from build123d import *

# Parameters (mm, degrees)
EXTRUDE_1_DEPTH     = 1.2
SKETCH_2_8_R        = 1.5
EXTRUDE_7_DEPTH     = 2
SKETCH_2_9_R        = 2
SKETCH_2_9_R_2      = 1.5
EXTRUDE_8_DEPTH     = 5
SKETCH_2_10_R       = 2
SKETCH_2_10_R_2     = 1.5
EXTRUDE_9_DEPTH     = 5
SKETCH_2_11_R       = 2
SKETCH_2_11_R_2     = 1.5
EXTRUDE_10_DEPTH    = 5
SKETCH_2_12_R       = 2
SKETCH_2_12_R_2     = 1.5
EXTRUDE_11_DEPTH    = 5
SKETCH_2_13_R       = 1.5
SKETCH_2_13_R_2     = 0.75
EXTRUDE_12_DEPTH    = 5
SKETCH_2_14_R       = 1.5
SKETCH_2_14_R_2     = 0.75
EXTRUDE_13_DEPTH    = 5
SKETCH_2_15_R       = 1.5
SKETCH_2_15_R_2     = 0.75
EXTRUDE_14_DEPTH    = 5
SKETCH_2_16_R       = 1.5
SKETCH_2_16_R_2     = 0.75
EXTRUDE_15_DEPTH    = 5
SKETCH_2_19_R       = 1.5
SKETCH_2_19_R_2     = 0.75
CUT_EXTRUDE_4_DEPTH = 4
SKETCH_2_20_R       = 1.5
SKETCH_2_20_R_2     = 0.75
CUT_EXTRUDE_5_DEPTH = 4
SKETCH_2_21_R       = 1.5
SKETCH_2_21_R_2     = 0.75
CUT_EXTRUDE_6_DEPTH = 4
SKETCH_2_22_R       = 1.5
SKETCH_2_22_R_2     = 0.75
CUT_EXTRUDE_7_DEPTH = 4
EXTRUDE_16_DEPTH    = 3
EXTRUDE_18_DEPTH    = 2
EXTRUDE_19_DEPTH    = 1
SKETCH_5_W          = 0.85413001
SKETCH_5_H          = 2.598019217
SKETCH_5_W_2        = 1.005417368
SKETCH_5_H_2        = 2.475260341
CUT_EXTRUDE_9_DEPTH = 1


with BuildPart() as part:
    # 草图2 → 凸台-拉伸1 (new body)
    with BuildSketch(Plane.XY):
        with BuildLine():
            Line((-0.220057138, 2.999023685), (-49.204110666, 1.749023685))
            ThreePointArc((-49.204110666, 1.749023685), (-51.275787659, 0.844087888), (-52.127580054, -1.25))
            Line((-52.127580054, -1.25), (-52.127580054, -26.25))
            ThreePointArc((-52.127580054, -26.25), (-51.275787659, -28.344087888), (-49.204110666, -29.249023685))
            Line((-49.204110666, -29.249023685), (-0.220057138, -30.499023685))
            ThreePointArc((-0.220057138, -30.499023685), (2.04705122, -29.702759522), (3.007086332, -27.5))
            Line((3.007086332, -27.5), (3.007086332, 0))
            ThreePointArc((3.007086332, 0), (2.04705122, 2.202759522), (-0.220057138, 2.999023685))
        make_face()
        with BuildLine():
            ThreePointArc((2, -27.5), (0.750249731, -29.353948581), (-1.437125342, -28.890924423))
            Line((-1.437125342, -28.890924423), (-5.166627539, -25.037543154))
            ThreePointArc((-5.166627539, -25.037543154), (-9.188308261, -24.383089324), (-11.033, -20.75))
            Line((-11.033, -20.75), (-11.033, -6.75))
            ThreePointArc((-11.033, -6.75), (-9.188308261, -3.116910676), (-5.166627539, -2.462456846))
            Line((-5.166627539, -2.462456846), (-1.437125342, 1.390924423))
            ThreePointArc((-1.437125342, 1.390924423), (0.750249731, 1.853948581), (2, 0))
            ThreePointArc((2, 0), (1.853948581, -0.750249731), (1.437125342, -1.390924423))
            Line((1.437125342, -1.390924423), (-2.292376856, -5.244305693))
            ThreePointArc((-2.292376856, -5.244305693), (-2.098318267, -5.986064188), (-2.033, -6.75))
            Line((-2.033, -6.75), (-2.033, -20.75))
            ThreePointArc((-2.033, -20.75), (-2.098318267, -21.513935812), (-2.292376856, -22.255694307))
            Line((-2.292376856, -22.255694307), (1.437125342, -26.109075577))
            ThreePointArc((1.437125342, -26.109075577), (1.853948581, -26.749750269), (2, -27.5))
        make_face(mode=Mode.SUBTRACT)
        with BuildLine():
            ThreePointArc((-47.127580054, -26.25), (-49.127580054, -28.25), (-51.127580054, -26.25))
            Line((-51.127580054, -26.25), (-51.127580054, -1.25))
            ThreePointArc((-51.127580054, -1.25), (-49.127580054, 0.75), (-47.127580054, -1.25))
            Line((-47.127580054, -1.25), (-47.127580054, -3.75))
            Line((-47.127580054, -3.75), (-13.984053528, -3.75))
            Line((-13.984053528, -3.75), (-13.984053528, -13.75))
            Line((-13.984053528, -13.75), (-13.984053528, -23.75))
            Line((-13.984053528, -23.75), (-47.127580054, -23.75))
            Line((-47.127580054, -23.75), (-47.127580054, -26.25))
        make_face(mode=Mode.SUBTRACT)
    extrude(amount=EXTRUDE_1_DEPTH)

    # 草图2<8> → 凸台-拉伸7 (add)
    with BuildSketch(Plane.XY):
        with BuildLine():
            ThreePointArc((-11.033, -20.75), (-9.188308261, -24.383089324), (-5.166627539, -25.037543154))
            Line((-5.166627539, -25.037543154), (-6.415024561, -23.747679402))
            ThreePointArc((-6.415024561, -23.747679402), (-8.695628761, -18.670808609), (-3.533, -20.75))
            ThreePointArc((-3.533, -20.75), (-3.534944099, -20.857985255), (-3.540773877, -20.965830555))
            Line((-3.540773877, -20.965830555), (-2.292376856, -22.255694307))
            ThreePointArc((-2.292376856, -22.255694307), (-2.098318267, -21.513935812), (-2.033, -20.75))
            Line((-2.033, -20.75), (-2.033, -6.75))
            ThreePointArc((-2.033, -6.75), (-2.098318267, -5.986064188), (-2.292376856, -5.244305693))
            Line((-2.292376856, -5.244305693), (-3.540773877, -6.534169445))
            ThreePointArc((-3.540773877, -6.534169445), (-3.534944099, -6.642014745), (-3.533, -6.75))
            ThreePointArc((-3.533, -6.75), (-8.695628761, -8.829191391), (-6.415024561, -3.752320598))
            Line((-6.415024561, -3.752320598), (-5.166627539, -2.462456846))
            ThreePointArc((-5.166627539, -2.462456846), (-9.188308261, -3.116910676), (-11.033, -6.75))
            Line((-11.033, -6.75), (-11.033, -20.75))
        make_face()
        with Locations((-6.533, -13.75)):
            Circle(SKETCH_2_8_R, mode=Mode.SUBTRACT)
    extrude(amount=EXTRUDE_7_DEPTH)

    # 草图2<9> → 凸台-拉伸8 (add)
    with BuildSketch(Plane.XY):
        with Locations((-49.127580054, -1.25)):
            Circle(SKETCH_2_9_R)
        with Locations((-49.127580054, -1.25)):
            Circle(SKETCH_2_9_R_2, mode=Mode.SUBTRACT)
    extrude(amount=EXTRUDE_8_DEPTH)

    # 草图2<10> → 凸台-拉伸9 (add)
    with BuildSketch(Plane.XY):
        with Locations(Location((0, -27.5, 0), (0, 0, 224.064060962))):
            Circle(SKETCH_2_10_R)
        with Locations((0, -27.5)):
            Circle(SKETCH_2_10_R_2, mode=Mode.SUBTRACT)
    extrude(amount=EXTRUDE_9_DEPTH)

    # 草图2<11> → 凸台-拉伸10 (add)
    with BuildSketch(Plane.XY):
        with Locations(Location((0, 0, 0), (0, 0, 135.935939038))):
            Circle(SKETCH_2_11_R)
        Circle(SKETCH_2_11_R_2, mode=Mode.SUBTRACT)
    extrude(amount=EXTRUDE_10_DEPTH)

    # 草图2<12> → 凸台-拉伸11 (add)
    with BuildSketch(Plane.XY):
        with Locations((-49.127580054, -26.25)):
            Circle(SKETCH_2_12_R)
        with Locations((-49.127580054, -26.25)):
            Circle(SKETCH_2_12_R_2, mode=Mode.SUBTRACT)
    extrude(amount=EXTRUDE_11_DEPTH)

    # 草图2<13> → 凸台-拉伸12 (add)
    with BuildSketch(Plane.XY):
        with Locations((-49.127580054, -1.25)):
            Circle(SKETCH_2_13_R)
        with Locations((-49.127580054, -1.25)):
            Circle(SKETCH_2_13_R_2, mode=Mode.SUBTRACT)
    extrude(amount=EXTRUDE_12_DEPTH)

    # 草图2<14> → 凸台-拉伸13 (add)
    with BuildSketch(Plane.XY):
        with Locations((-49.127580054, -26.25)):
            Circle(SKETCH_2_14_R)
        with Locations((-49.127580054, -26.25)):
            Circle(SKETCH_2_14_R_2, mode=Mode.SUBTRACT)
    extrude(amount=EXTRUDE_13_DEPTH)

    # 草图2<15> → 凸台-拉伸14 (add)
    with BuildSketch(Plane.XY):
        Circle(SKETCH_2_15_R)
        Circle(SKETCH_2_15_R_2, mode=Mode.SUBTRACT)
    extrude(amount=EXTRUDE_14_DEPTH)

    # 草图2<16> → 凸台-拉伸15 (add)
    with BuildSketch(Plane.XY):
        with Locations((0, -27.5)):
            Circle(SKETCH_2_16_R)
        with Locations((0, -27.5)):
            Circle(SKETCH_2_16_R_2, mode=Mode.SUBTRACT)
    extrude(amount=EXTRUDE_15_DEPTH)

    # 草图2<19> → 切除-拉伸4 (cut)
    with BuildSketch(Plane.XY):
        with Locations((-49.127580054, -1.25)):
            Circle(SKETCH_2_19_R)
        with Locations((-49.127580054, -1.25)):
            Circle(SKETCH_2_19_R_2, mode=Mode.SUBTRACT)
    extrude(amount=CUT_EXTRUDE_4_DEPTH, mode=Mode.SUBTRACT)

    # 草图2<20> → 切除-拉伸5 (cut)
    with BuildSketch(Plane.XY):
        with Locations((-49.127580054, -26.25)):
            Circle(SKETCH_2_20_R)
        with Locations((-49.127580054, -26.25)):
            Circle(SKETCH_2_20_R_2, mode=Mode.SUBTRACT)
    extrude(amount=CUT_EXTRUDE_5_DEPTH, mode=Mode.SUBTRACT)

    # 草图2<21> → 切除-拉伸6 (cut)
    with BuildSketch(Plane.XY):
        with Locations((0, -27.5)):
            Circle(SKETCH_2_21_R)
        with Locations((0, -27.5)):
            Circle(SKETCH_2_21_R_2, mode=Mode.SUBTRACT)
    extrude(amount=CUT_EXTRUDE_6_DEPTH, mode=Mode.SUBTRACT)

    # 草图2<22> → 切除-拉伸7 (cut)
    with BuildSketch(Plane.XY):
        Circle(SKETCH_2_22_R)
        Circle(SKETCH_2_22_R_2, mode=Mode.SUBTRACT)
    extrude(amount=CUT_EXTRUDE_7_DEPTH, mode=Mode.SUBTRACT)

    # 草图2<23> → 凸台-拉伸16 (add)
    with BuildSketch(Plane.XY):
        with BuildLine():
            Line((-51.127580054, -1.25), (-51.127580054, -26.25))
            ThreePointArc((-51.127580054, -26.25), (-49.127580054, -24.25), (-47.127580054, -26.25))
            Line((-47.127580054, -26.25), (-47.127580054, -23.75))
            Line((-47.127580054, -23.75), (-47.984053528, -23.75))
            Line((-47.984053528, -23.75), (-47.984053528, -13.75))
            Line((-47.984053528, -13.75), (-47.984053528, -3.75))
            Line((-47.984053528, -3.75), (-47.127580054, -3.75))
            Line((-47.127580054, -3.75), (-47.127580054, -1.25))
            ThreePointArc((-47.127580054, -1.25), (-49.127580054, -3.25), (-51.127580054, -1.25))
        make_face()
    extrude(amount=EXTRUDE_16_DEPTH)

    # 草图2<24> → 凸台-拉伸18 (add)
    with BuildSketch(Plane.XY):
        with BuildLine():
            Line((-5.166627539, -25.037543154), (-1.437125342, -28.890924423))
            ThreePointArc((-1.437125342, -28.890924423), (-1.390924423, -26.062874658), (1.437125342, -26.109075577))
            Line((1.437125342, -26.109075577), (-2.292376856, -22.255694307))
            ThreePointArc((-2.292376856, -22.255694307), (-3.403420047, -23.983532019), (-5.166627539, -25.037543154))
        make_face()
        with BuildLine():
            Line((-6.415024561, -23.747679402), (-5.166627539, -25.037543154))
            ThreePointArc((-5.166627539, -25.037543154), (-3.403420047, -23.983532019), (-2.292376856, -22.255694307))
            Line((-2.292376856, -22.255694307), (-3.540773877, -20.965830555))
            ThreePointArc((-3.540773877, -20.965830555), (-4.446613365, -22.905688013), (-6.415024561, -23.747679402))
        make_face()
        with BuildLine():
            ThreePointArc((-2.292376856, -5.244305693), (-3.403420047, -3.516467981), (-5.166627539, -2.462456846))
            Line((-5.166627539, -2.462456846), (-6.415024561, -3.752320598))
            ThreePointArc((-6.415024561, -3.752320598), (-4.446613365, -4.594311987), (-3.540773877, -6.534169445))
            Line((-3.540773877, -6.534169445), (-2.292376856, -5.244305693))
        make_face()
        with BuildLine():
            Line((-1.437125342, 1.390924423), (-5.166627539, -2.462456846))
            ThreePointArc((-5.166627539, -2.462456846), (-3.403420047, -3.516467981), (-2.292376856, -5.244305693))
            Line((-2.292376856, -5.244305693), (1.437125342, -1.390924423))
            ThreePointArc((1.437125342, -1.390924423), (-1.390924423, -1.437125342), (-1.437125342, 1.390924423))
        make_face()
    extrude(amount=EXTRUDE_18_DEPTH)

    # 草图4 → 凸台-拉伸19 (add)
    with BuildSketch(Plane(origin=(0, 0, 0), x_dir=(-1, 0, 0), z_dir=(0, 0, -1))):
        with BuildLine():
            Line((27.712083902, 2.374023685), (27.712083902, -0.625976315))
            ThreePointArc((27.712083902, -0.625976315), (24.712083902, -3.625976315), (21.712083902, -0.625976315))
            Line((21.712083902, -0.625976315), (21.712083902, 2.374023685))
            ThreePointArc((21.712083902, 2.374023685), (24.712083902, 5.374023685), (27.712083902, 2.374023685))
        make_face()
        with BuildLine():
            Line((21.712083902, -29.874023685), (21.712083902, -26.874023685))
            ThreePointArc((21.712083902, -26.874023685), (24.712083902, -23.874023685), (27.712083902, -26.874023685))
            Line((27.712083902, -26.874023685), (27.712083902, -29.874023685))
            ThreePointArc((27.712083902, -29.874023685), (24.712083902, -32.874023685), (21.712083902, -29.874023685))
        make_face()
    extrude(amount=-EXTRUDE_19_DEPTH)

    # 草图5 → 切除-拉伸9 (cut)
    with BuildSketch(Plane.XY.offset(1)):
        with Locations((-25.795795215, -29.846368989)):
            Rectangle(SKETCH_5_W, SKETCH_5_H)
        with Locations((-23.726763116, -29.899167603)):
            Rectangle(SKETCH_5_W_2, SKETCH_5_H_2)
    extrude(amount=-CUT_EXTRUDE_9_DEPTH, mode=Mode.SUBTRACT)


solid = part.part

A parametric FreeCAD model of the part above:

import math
import FreeCAD as App
import Part
import Sketcher
from FreeCAD import Vector

doc = App.newDocument("Part")
body = doc.addObject("PartDesign::Body", "Body")

sketch1 = body.newObject("Sketcher::SketchObject", "Sketch")
sketch1.AttachmentSupport = (doc.getObject("XY_Plane"), [""])
sketch1.MapMode = "FlatFace"
sketch1.addGeometry([
    Part.LineSegment(Vector(-0.2, 3, 0), Vector(-49.2, 1.7, 0)),
    Part.ArcOfCircle(Part.Circle(Vector(-49.1, -1.3, 0), Vector(0, 0, 1), 3), math.radians(91), math.radians(180)),
    Part.LineSegment(Vector(-52.1, -1.2, 0), Vector(-52.1, -26.2, 0)),
    Part.ArcOfCircle(Part.Circle(Vector(-49.1, -26.2, 0), Vector(0, 0, 1), 3), math.radians(-180), math.radians(-91)),
    Part.LineSegment(Vector(-49.2, -29.2, 0), Vector(-0.2, -30.5, 0)),
    Part.ArcOfCircle(Part.Circle(Vector(0, -27.5, 0), Vector(0, 0, 1), 3), math.radians(-94), math.radians(0)),
    Part.LineSegment(Vector(3, -27.5, 0), Vector(3, 0, 0)),
    Part.ArcOfCircle(Part.Circle(Vector(0, 0, 0), Vector(0, 0, 1), 3), math.radians(0), math.radians(94)),
    Part.LineSegment(Vector(-47.1, -23.8, 0), Vector(-47.1, -26.2, 0)),
    Part.ArcOfCircle(Part.Circle(Vector(-49.1, -26.2, 0), Vector(0, 0, 1), 2), math.radians(180), math.radians(360)),
    Part.LineSegment(Vector(-51.1, -26.2, 0), Vector(-51.1, -1.2, 0)),
    Part.ArcOfCircle(Part.Circle(Vector(-49.1, -1.2, 0), Vector(0, 0, 1), 2), math.radians(0), math.radians(180)),
    Part.LineSegment(Vector(-47.1, -1.2, 0), Vector(-47.1, -3.8, 0)),
    Part.LineSegment(Vector(-47.1, -3.8, 0), Vector(-14, -3.8, 0)),
    Part.LineSegment(Vector(-14, -3.8, 0), Vector(-14, -23.8, 0)),
    Part.LineSegment(Vector(-14, -23.8, 0), Vector(-47.1, -23.8, 0)),
    Part.ArcOfCircle(Part.Circle(Vector(0, -27.5, 0), Vector(0, 0, 1), 2), math.radians(0), math.radians(44)),
    Part.ArcOfCircle(Part.Circle(Vector(0, -27.5, 0), Vector(0, 0, 1), 2), math.radians(-136), math.radians(0)),
    Part.LineSegment(Vector(-1.4, -28.9, 0), Vector(-5.2, -25, 0)),
    Part.ArcOfCircle(Part.Circle(Vector(-6.5, -20.7, 0), Vector(0, 0, 1), 4.5), math.radians(-180), math.radians(-72)),
    Part.LineSegment(Vector(-11, -20.8, 0), Vector(-11, -6.8, 0)),
    Part.ArcOfCircle(Part.Circle(Vector(-6.5, -6.8, 0), Vector(0, 0, 1), 4.5), math.radians(72), math.radians(180)),
    Part.LineSegment(Vector(-5.2, -2.5, 0), Vector(-1.4, 1.4, 0)),
    Part.ArcOfCircle(Part.Circle(Vector(0, 0, 0), Vector(0, 0, 1), 2), math.radians(0), math.radians(136)),
    Part.ArcOfCircle(Part.Circle(Vector(0, 0, 0), Vector(0, 0, 1), 2), math.radians(-44), math.radians(0)),
    Part.LineSegment(Vector(1.4, -1.4, 0), Vector(-2.3, -5.2, 0)),
    Part.ArcOfCircle(Part.Circle(Vector(-6.5, -6.8, 0), Vector(0, 0, 1), 4.5), math.radians(0), math.radians(19.55)),
    Part.LineSegment(Vector(-2, -6.8, 0), Vector(-2, -20.8, 0)),
    Part.ArcOfCircle(Part.Circle(Vector(-6.5, -20.7, 0), Vector(0, 0, 1), 4.5), math.radians(-19.55), math.radians(0)),
    Part.LineSegment(Vector(-2.3, -22.3, 0), Vector(1.4, -26.1, 0)),
], False)
sketch1.addConstraint([
    Sketcher.Constraint("Tangent", 0, 2, 1, 1),
    Sketcher.Constraint("Tangent", 1, 2, 2, 1),
    Sketcher.Constraint("Tangent", 2, 2, 3, 1),
    Sketcher.Constraint("Tangent", 3, 2, 4, 1),
    Sketcher.Constraint("Coincident", 4, 2, 5, 1),
    Sketcher.Constraint("Tangent", 5, 2, 6, 1),
    Sketcher.Constraint("Tangent", 6, 2, 7, 1),
    Sketcher.Constraint("Coincident", 7, 2, 0, 1),
    Sketcher.Constraint("Tangent", 8, 2, 9, 2),
    Sketcher.Constraint("Tangent", 9, 1, 10, 1),
    Sketcher.Constraint("Tangent", 10, 2, 11, 2),
    Sketcher.Constraint("Tangent", 11, 1, 12, 1),
    Sketcher.Constraint("Coincident", 12, 2, 13, 1),
    Sketcher.Constraint("Coincident", 13, 2, 14, 1),
    Sketcher.Constraint("Coincident", 14, 2, 15, 1),
    Sketcher.Constraint("Coincident", 15, 2, 8, 1),
    Sketcher.Constraint("Tangent", 16, 1, 17, 2),
    Sketcher.Constraint("Tangent", 17, 1, 18, 1),
    Sketcher.Constraint("Coincident", 18, 2, 19, 2),
    Sketcher.Constraint("Tangent", 19, 1, 20, 1),
    Sketcher.Constraint("Tangent", 20, 2, 21, 2),
    Sketcher.Constraint("Coincident", 21, 1, 22, 1),
    Sketcher.Constraint("Tangent", 22, 2, 23, 2),
    Sketcher.Constraint("Tangent", 23, 1, 24, 2),
    Sketcher.Constraint("Tangent", 24, 1, 25, 1),
    Sketcher.Constraint("Coincident", 25, 2, 26, 2),
    Sketcher.Constraint("Tangent", 26, 1, 27, 1),
    Sketcher.Constraint("Tangent", 27, 2, 28, 2),
    Sketcher.Constraint("Coincident", 28, 1, 29, 1),
    Sketcher.Constraint("Tangent", 29, 2, 16, 2),
    Sketcher.Constraint("Vertical", 2),
    Sketcher.Constraint("Vertical", 6),
    Sketcher.Constraint("Vertical", 8),
    Sketcher.Constraint("Vertical", 10),
    Sketcher.Constraint("Vertical", 12),
    Sketcher.Constraint("Horizontal", 13),
    Sketcher.Constraint("Vertical", 14),
    Sketcher.Constraint("Horizontal", 15),
    Sketcher.Constraint("Vertical", 20),
    Sketcher.Constraint("Vertical", 27),
    Sketcher.Constraint("Coincident", 7, 3, -1, 1),
    Sketcher.Constraint("Coincident", 23, 3, -1, 1),
    Sketcher.Constraint("Coincident", 9, 3, 3, 3),
    Sketcher.Constraint("Coincident", 11, 3, 1, 3),
    Sketcher.Constraint("Coincident", 16, 3, 5, 3),
    Sketcher.Constraint("Coincident", 26, 3, 21, 3),
    Sketcher.Constraint("Coincident", 28, 3, 19, 3),
    Sketcher.Constraint("Equal", 1, 3),
    Sketcher.Constraint("Equal", 5, 7),
    Sketcher.Constraint("Equal", 11, 16),
    Sketcher.Constraint("Equal", 16, 17),
    Sketcher.Constraint("Equal", 19, 21),
    Sketcher.Constraint("Equal", 17, 23),
    Sketcher.Constraint("Equal", 23, 24),
    Sketcher.Constraint("Equal", 21, 26),
    Sketcher.Constraint("PointOnObject", 23, 1, -1),
    Sketcher.Constraint("Parallel", 22, 25),
    Sketcher.Constraint("Parallel", 18, 29),
    Sketcher.Constraint("Horizontal", 5, 2, 16, 1),
    Sketcher.Constraint("Vertical", 0, 2, 3, 2),
    Sketcher.Constraint("Vertical", 4, 2, 7, 2),
    Sketcher.Constraint("Vertical", 18, 2, 21, 1),
    Sketcher.Constraint("Vertical", 17, 1, 22, 2),
    Sketcher.Constraint("Equal", 8, 12),
    Sketcher.Constraint("Equal", 22, 25),
    Sketcher.Constraint("Radius", 1, 3.0),
    Sketcher.Constraint("Radius", 9, 2.0),
    Sketcher.Constraint("Radius", 19, 4.5),
    Sketcher.Constraint("DistanceY", 2, 2, 2, 1, 25.0),
    Sketcher.Constraint("DistanceY", 14, 2, 14, 1, 20.0),
    Sketcher.Constraint("DistanceY", 20, 1, 20, 2, 14.0),
    Sketcher.Constraint("Distance", 0, 49.0),
    Sketcher.Constraint("DistanceY", 6, 1, 6, 2, 27.5),
    Sketcher.Constraint("DistanceX", 19, 3, -1, 1, 6.533),
    Sketcher.Constraint("Radius", 5, 3.007086),
    Sketcher.Constraint("DistanceY", 4, 2, 17, 1, 1.608099),
    Sketcher.Constraint("DistanceX", 13, 1, 13, 2, 33.143527),
])
pad1 = body.newObject("PartDesign::Pad", "Pad")
pad1.Profile = sketch1
pad1.Length = 1.2

sketch2 = body.newObject("Sketcher::SketchObject", "Sketch001")
sketch2.AttachmentSupport = (doc.getObject("XY_Plane"), [""])
sketch2.MapMode = "FlatFace"
sketch2.addGeometry([
    Part.ArcOfCircle(Part.Circle(Vector(-6.53, -20.75, 0), Vector(0, 0, 1), 4.5), math.radians(-180), math.radians(-72)),
    Part.LineSegment(Vector(-5.17, -25.04, 0), Vector(-6.42, -23.75, 0)),
    Part.ArcOfCircle(Part.Circle(Vector(-6.53, -20.75, 0), Vector(0, 0, 1), 3), math.radians(0), math.radians(272)),
    Part.ArcOfCircle(Part.Circle(Vector(-6.53, -20.75, 0), Vector(0, 0, 1), 3), math.radians(-4.13), math.radians(0)),
    Part.LineSegment(Vector(-3.54, -20.97, 0), Vector(-2.29, -22.26, 0)),
    Part.ArcOfCircle(Part.Circle(Vector(-6.53, -20.75, 0), Vector(0, 0, 1), 4.5), math.radians(-19.55), math.radians(0)),
    Part.LineSegment(Vector(-2.03, -20.75, 0), Vector(-2.03, -6.75, 0)),
    Part.ArcOfCircle(Part.Circle(Vector(-6.53, -6.75, 0), Vector(0, 0, 1), 4.5), math.radians(0), math.radians(19.55)),
    Part.LineSegment(Vector(-2.29, -5.24, 0), Vector(-3.54, -6.53, 0)),
    Part.ArcOfCircle(Part.Circle(Vector(-6.53, -6.75, 0), Vector(0, 0, 1), 3), math.radians(0), math.radians(4.13)),
    Part.ArcOfCircle(Part.Circle(Vector(-6.53, -6.75, 0), Vector(0, 0, 1), 3), math.radians(88), math.radians(360)),
    Part.LineSegment(Vector(-6.42, -3.75, 0), Vector(-5.17, -2.46, 0)),
    Part.ArcOfCircle(Part.Circle(Vector(-6.53, -6.75, 0), Vector(0, 0, 1), 4.5), math.radians(72), math.radians(180)),
    Part.LineSegment(Vector(-11.03, -6.75, 0), Vector(-11.03, -20.75, 0)),
    Part.Circle(Vector(-6.53, -13.75, 0), Vector(0, 0, 1), 1.5),
], False)
sketch2.addConstraint([
    Sketcher.Constraint("Coincident", 0, 2, 1, 1),
    Sketcher.Constraint("Coincident", 1, 2, 2, 2),
    Sketcher.Constraint("Tangent", 2, 1, 3, 2),
    Sketcher.Constraint("Coincident", 3, 1, 4, 1),
    Sketcher.Constraint("Coincident", 4, 2, 5, 1),
    Sketcher.Constraint("Tangent", 5, 2, 6, 1),
    Sketcher.Constraint("Tangent", 6, 2, 7, 1),
    Sketcher.Constraint("Coincident", 7, 2, 8, 1),
    Sketcher.Constraint("Coincident", 8, 2, 9, 2),
    Sketcher.Constraint("Tangent", 9, 1, 10, 2),
    Sketcher.Constraint("Coincident", 10, 1, 11, 1),
    Sketcher.Constraint("Coincident", 11, 2, 12, 1),
    Sketcher.Constraint("Tangent", 12, 2, 13, 1),
    Sketcher.Constraint("Tangent", 13, 2, 0, 1),
    Sketcher.Constraint("Vertical", 6),
    Sketcher.Constraint("Vertical", 13),
    Sketcher.Constraint("Coincident", 2, 3, 0, 3),
    Sketcher.Constraint("Coincident", 5, 3, 0, 3),
    Sketcher.Constraint("Coincident", 9, 3, 7, 3),
    Sketcher.Constraint("Coincident", 12, 3, 7, 3),
    Sketcher.Constraint("Equal", 2, 3),
    Sketcher.Constraint("Equal", 0, 5),
    Sketcher.Constraint("Equal", 5, 7),
    Sketcher.Constraint("Equal", 3, 9),
    Sketcher.Constraint("Equal", 9, 10),
    Sketcher.Constraint("Parallel", 1, 4),
    Sketcher.Constraint("Parallel", 8, 11),
    Sketcher.Constraint("Horizontal", 5, 3, 2, 1),
    Sketcher.Constraint("Horizontal", 6, 2, 9, 1),
    Sketcher.Constraint("Vertical", 12, 3, 14, 3),
    Sketcher.Constraint("Vertical", 4, 2, 7, 2),
    Sketcher.Constraint("Vertical", 3, 1, 8, 2),
    Sketcher.Constraint("Vertical", 1, 2, 10, 1),
    Sketcher.Constraint("Equal", 1, 4),
    Sketcher.Constraint("Diameter", 14, 3.0),
    Sketcher.Constraint("Radius", 2, 3.0),
    Sketcher.Constraint("Radius", 0, 4.5),
    Sketcher.Constraint("DistanceY", 6, 1, 6, 2, 14.0),
    Sketcher.Constraint("DistanceY", 0, 3, 14, 3, 7.0),
    Sketcher.Constraint("DistanceY", 0, 3, -1, 1, 20.75),
    Sketcher.Constraint("DistanceX", 0, 3, -1, 1, 6.533),
    Sketcher.Constraint("Distance", 1, 1.795061),
    Sketcher.Constraint("DistanceY", 1, 2, -1, 1, 23.747679),
])
pad2 = body.newObject("PartDesign::Pad", "Pad001")
pad2.Profile = sketch2
pad2.Length = 2

sketch3 = body.newObject("Sketcher::SketchObject", "Sketch002")
sketch3.AttachmentSupport = (doc.getObject("XY_Plane"), [""])
sketch3.MapMode = "FlatFace"
sketch3.addGeometry([
    Part.Circle(Vector(-49.1, -1.2, 0), Vector(0, 0, 1), 2),
    Part.Circle(Vector(-49.1, -1.2, 0), Vector(0, 0, 1), 1.5),
], False)
sketch3.addConstraint([
    Sketcher.Constraint("Coincident", 1, 3, 0, 3),
    Sketcher.Constraint("Diameter", 0, 4.0),
    Sketcher.Constraint("Diameter", 1, 3.0),
    Sketcher.Constraint("DistanceY", 0, 3, -1, 1, 1.25),
    Sketcher.Constraint("DistanceX", 0, 3, -1, 1, 49.12758),
])
pad3 = body.newObject("PartDesign::Pad", "Pad002")
pad3.Profile = sketch3
pad3.Length = 5

sketch4 = body.newObject("Sketcher::SketchObject", "Sketch003")
sketch4.AttachmentSupport = (doc.getObject("XY_Plane"), [""])
sketch4.MapMode = "FlatFace"
sketch4.addGeometry([
    Part.Circle(Vector(0, -27.5, 0), Vector(0, 0, 1), 2),
    Part.Circle(Vector(0, -27.5, 0), Vector(0, 0, 1), 1.5),
], False)
sketch4.addConstraint([
    Sketcher.Constraint("Coincident", 1, 3, 0, 3),
    Sketcher.Constraint("PointOnObject", 0, 3, -2),
    Sketcher.Constraint("Diameter", 0, 4.0),
    Sketcher.Constraint("Diameter", 1, 3.0),
    Sketcher.Constraint("DistanceY", 0, 3, -1, 1, 27.5),
])
pad4 = body.newObject("PartDesign::Pad", "Pad003")
pad4.Profile = sketch4
pad4.Length = 5

sketch5 = body.newObject("Sketcher::SketchObject", "Sketch004")
sketch5.AttachmentSupport = (doc.getObject("XY_Plane"), [""])
sketch5.MapMode = "FlatFace"
sketch5.addGeometry([
    Part.Circle(Vector(0, 0, 0), Vector(0, 0, 1), 2),
    Part.Circle(Vector(0, 0, 0), Vector(0, 0, 1), 1.5),
], False)
sketch5.addConstraint([
    Sketcher.Constraint("Coincident", 0, 3, -1, 1),
    Sketcher.Constraint("Coincident", 1, 3, -1, 1),
    Sketcher.Constraint("Diameter", 0, 4.0),
    Sketcher.Constraint("Diameter", 1, 3.0),
])
pad5 = body.newObject("PartDesign::Pad", "Pad004")
pad5.Profile = sketch5
pad5.Length = 5

sketch6 = body.newObject("Sketcher::SketchObject", "Sketch005")
sketch6.AttachmentSupport = (doc.getObject("XY_Plane"), [""])
sketch6.MapMode = "FlatFace"
sketch6.addGeometry([
    Part.Circle(Vector(-49.1, -26.2, 0), Vector(0, 0, 1), 2),
    Part.Circle(Vector(-49.1, -26.2, 0), Vector(0, 0, 1), 1.5),
], False)
sketch6.addConstraint([
    Sketcher.Constraint("Coincident", 1, 3, 0, 3),
    Sketcher.Constraint("Diameter", 0, 4.0),
    Sketcher.Constraint("Diameter", 1, 3.0),
    Sketcher.Constraint("DistanceY", 0, 3, -1, 1, 26.25),
    Sketcher.Constraint("DistanceX", 0, 3, -1, 1, 49.12758),
])
pad6 = body.newObject("PartDesign::Pad", "Pad005")
pad6.Profile = sketch6
pad6.Length = 5

sketch7 = body.newObject("Sketcher::SketchObject", "Sketch006")
sketch7.AttachmentSupport = (doc.getObject("XY_Plane"), [""])
sketch7.MapMode = "FlatFace"
sketch7.addGeometry([
    Part.Circle(Vector(-49.1, -1.2, 0), Vector(0, 0, 1), 1.5),
    Part.Circle(Vector(-49.1, -1.2, 0), Vector(0, 0, 1), 0.8),
], False)
sketch7.addConstraint([
    Sketcher.Constraint("Coincident", 1, 3, 0, 3),
    Sketcher.Constraint("Diameter", 0, 3.0),
    Sketcher.Constraint("Diameter", 1, 1.5),
    Sketcher.Constraint("DistanceY", 0, 3, -1, 1, 1.25),
    Sketcher.Constraint("DistanceX", 0, 3, -1, 1, 49.12758),
])
pad7 = body.newObject("PartDesign::Pad", "Pad006")
pad7.Profile = sketch7
pad7.Length = 5

sketch8 = body.newObject("Sketcher::SketchObject", "Sketch007")
sketch8.AttachmentSupport = (doc.getObject("XY_Plane"), [""])
sketch8.MapMode = "FlatFace"
sketch8.addGeometry([
    Part.Circle(Vector(-49.1, -26.2, 0), Vector(0, 0, 1), 1.5),
    Part.Circle(Vector(-49.1, -26.2, 0), Vector(0, 0, 1), 0.8),
], False)
sketch8.addConstraint([
    Sketcher.Constraint("Coincident", 1, 3, 0, 3),
    Sketcher.Constraint("Diameter", 0, 3.0),
    Sketcher.Constraint("Diameter", 1, 1.5),
    Sketcher.Constraint("DistanceY", 0, 3, -1, 1, 26.25),
    Sketcher.Constraint("DistanceX", 0, 3, -1, 1, 49.12758),
])
pad8 = body.newObject("PartDesign::Pad", "Pad007")
pad8.Profile = sketch8
pad8.Length = 5

sketch9 = body.newObject("Sketcher::SketchObject", "Sketch008")
sketch9.AttachmentSupport = (doc.getObject("XY_Plane"), [""])
sketch9.MapMode = "FlatFace"
sketch9.addGeometry([
    Part.Circle(Vector(0, 0, 0), Vector(0, 0, 1), 1.5),
    Part.Circle(Vector(0, 0, 0), Vector(0, 0, 1), 0.8),
], False)
sketch9.addConstraint([
    Sketcher.Constraint("Coincident", 0, 3, -1, 1),
    Sketcher.Constraint("Coincident", 1, 3, -1, 1),
    Sketcher.Constraint("Diameter", 0, 3.0),
    Sketcher.Constraint("Diameter", 1, 1.5),
])
pad9 = body.newObject("PartDesign::Pad", "Pad008")
pad9.Profile = sketch9
pad9.Length = 5

sketch10 = body.newObject("Sketcher::SketchObject", "Sketch009")
sketch10.AttachmentSupport = (doc.getObject("XY_Plane"), [""])
sketch10.MapMode = "FlatFace"
sketch10.addGeometry([
    Part.Circle(Vector(0, -27.5, 0), Vector(0, 0, 1), 1.5),
    Part.Circle(Vector(0, -27.5, 0), Vector(0, 0, 1), 0.8),
], False)
sketch10.addConstraint([
    Sketcher.Constraint("Coincident", 1, 3, 0, 3),
    Sketcher.Constraint("PointOnObject", 0, 3, -2),
    Sketcher.Constraint("Diameter", 0, 3.0),
    Sketcher.Constraint("Diameter", 1, 1.5),
    Sketcher.Constraint("DistanceY", 0, 3, -1, 1, 27.5),
])
pad10 = body.newObject("PartDesign::Pad", "Pad009")
pad10.Profile = sketch10
pad10.Length = 5

sketch11 = body.newObject("Sketcher::SketchObject", "Sketch010")
sketch11.AttachmentSupport = (doc.getObject("XY_Plane"), [""])
sketch11.MapMode = "FlatFace"
sketch11.addGeometry([
    Part.Circle(Vector(-49.1, -1.2, 0), Vector(0, 0, 1), 1.5),
    Part.Circle(Vector(-49.1, -1.2, 0), Vector(0, 0, 1), 0.8),
], False)
sketch11.addConstraint([
    Sketcher.Constraint("Coincident", 1, 3, 0, 3),
    Sketcher.Constraint("Diameter", 0, 3.0),
    Sketcher.Constraint("Diameter", 1, 1.5),
    Sketcher.Constraint("DistanceY", 0, 3, -1, 1, 1.25),
    Sketcher.Constraint("DistanceX", 0, 3, -1, 1, 49.12758),
])
pocket1 = body.newObject("PartDesign::Pocket", "Pocket")
pocket1.Profile = sketch11
pocket1.Length = 4
pocket1.Reversed = True

sketch12 = body.newObject("Sketcher::SketchObject", "Sketch011")
sketch12.AttachmentSupport = (doc.getObject("XY_Plane"), [""])
sketch12.MapMode = "FlatFace"
sketch12.addGeometry([
    Part.Circle(Vector(-49.1, -26.2, 0), Vector(0, 0, 1), 1.5),
    Part.Circle(Vector(-49.1, -26.2, 0), Vector(0, 0, 1), 0.8),
], False)
sketch12.addConstraint([
    Sketcher.Constraint("Coincident", 1, 3, 0, 3),
    Sketcher.Constraint("Diameter", 0, 3.0),
    Sketcher.Constraint("Diameter", 1, 1.5),
    Sketcher.Constraint("DistanceY", 0, 3, -1, 1, 26.25),
    Sketcher.Constraint("DistanceX", 0, 3, -1, 1, 49.12758),
])
pocket2 = body.newObject("PartDesign::Pocket", "Pocket001")
pocket2.Profile = sketch12
pocket2.Length = 4
pocket2.Reversed = True

sketch13 = body.newObject("Sketcher::SketchObject", "Sketch012")
sketch13.AttachmentSupport = (doc.getObject("XY_Plane"), [""])
sketch13.MapMode = "FlatFace"
sketch13.addGeometry([
    Part.Circle(Vector(0, -27.5, 0), Vector(0, 0, 1), 1.5),
    Part.Circle(Vector(0, -27.5, 0), Vector(0, 0, 1), 0.8),
], False)
sketch13.addConstraint([
    Sketcher.Constraint("Coincident", 1, 3, 0, 3),
    Sketcher.Constraint("PointOnObject", 0, 3, -2),
    Sketcher.Constraint("Diameter", 0, 3.0),
    Sketcher.Constraint("Diameter", 1, 1.5),
    Sketcher.Constraint("DistanceY", 0, 3, -1, 1, 27.5),
])
pocket3 = body.newObject("PartDesign::Pocket", "Pocket002")
pocket3.Profile = sketch13
pocket3.Length = 4
pocket3.Reversed = True

sketch14 = body.newObject("Sketcher::SketchObject", "Sketch013")
sketch14.AttachmentSupport = (doc.getObject("XY_Plane"), [""])
sketch14.MapMode = "FlatFace"
sketch14.addGeometry([
    Part.Circle(Vector(0, 0, 0), Vector(0, 0, 1), 1.5),
    Part.Circle(Vector(0, 0, 0), Vector(0, 0, 1), 0.8),
], False)
sketch14.addConstraint([
    Sketcher.Constraint("Coincident", 0, 3, -1, 1),
    Sketcher.Constraint("Coincident", 1, 3, -1, 1),
    Sketcher.Constraint("Diameter", 0, 3.0),
    Sketcher.Constraint("Diameter", 1, 1.5),
])
pocket4 = body.newObject("PartDesign::Pocket", "Pocket003")
pocket4.Profile = sketch14
pocket4.Length = 4
pocket4.Reversed = True

sketch15 = body.newObject("Sketcher::SketchObject", "Sketch014")
sketch15.AttachmentSupport = (doc.getObject("XY_Plane"), [""])
sketch15.MapMode = "FlatFace"
sketch15.addGeometry([
    Part.LineSegment(Vector(-51.1, -1.2, 0), Vector(-51.1, -26.2, 0)),
    Part.ArcOfCircle(Part.Circle(Vector(-49.1, -26.2, 0), Vector(0, 0, 1), 2), math.radians(0), math.radians(180)),
    Part.LineSegment(Vector(-47.1, -26.2, 0), Vector(-47.1, -23.8, 0)),
    Part.LineSegment(Vector(-47.1, -23.8, 0), Vector(-48, -23.8, 0)),
    Part.LineSegment(Vector(-48, -23.8, 0), Vector(-48, -3.8, 0)),
    Part.LineSegment(Vector(-48, -3.8, 0), Vector(-47.1, -3.8, 0)),
    Part.LineSegment(Vector(-47.1, -3.8, 0), Vector(-47.1, -1.2, 0)),
    Part.ArcOfCircle(Part.Circle(Vector(-49.1, -1.2, 0), Vector(0, 0, 1), 2), math.radians(180), math.radians(360)),
], False)
sketch15.addConstraint([
    Sketcher.Constraint("Tangent", 0, 2, 1, 2),
    Sketcher.Constraint("Tangent", 1, 1, 2, 1),
    Sketcher.Constraint("Coincident", 2, 2, 3, 1),
    Sketcher.Constraint("Coincident", 3, 2, 4, 1),
    Sketcher.Constraint("Coincident", 4, 2, 5, 1),
    Sketcher.Constraint("Coincident", 5, 2, 6, 1),
    Sketcher.Constraint("Tangent", 6, 2, 7, 2),
    Sketcher.Constraint("Tangent", 7, 1, 0, 1),
    Sketcher.Constraint("Vertical", 0),
    Sketcher.Constraint("Vertical", 2),
    Sketcher.Constraint("Horizontal", 3),
    Sketcher.Constraint("Vertical", 4),
    Sketcher.Constraint("Horizontal", 5),
    Sketcher.Constraint("Vertical", 6),
    Sketcher.Constraint("Equal", 1, 7),
    Sketcher.Constraint("Equal", 2, 6),
    Sketcher.Constraint("Radius", 1, 2.0),
    Sketcher.Constraint("DistanceY", 0, 2, 0, 1, 25.0),
    Sketcher.Constraint("DistanceY", 4, 1, 4, 2, 20.0),
    Sketcher.Constraint("DistanceY", 1, 3, -1, 1, 26.25),
    Sketcher.Constraint("DistanceX", 3, 2, 3, 1, 0.856473),
    Sketcher.Constraint("DistanceX", 1, 3, -1, 1, 49.12758),
])
pad11 = body.newObject("PartDesign::Pad", "Pad010")
pad11.Profile = sketch15
pad11.Length = 3

sketch16 = body.newObject("Sketcher::SketchObject", "Sketch015")
sketch16.AttachmentSupport = (doc.getObject("XY_Plane"), [""])
sketch16.MapMode = "FlatFace"
sketch16.addGeometry([
    Part.LineSegment(Vector(-5.2, -25, 0), Vector(-1.4, -28.9, 0)),
    Part.ArcOfCircle(Part.Circle(Vector(0, -27.5, 0), Vector(0, 0, 1), 2), math.radians(44), math.radians(224)),
    Part.LineSegment(Vector(1.4, -26.1, 0), Vector(-2.3, -22.3, 0)),
    Part.LineSegment(Vector(-2.3, -22.3, 0), Vector(-3.5, -21, 0)),
    Part.ArcOfCircle(Part.Circle(Vector(-6.5, -20.8, 0), Vector(0, 0, 1), 3), math.radians(-88), math.radians(-4)),
    Part.LineSegment(Vector(-6.4, -23.7, 0), Vector(-5.2, -25, 0)),
    Part.LineSegment(Vector(-5.2, -2.5, 0), Vector(-6.4, -3.8, 0)),
    Part.ArcOfCircle(Part.Circle(Vector(-6.5, -6.8, 0), Vector(0, 0, 1), 3), math.radians(4), math.radians(88)),
    Part.LineSegment(Vector(-3.5, -6.5, 0), Vector(-2.3, -5.2, 0)),
    Part.LineSegment(Vector(-2.3, -5.2, 0), Vector(1.4, -1.4, 0)),
    Part.ArcOfCircle(Part.Circle(Vector(0, 0, 0), Vector(0, 0, 1), 2), math.radians(136), math.radians(316)),
    Part.LineSegment(Vector(-1.4, 1.4, 0), Vector(-5.2, -2.5, 0)),
], False)
sketch16.addConstraint([
    Sketcher.Constraint("Tangent", 0, 2, 1, 2),
    Sketcher.Constraint("Tangent", 1, 1, 2, 1),
    Sketcher.Constraint("Coincident", 2, 2, 3, 1),
    Sketcher.Constraint("Coincident", 3, 2, 4, 2),
    Sketcher.Constraint("Coincident", 4, 1, 5, 1),
    Sketcher.Constraint("Coincident", 5, 2, 0, 1),
    Sketcher.Constraint("Coincident", 6, 2, 7, 2),
    Sketcher.Constraint("Coincident", 7, 1, 8, 1),
    Sketcher.Constraint("Coincident", 8, 2, 9, 1),
    Sketcher.Constraint("Tangent", 9, 2, 10, 2),
    Sketcher.Constraint("Tangent", 10, 1, 11, 1),
    Sketcher.Constraint("Coincident", 11, 2, 6, 1),
    Sketcher.Constraint("Coincident", 10, 3, -1, 1),
    Sketcher.Constraint("Equal", 4, 7),
    Sketcher.Constraint("Equal", 1, 10),
    Sketcher.Constraint("PointOnObject", 1, 3, -2),
    Sketcher.Constraint("Parallel", 0, 2),
    Sketcher.Constraint("Parallel", 2, 3),
    Sketcher.Constraint("Parallel", 3, 5),
    Sketcher.Constraint("Parallel", 6, 8),
    Sketcher.Constraint("Parallel", 8, 9),
    Sketcher.Constraint("Parallel", 9, 11),
    Sketcher.Constraint("Vertical", 4, 3, 7, 3),
    Sketcher.Constraint("Vertical", 4, 1, 6, 2),
    Sketcher.Constraint("Vertical", 2, 2, 8, 2),
    Sketcher.Constraint("Vertical", 1, 1, 9, 2),
    Sketcher.Constraint("Vertical", 5, 2, 11, 2),
    Sketcher.Constraint("Equal", 0, 2),
    Sketcher.Constraint("Equal", 3, 5),
    Sketcher.Constraint("Radius", 1, 2.0),
    Sketcher.Constraint("Radius", 4, 3.0),
    Sketcher.Constraint("DistanceY", 4, 3, 7, 3, 14.0),
    Sketcher.Constraint("DistanceY", 1, 3, -1, 1, 27.5),
    Sketcher.Constraint("DistanceX", 4, 3, -1, 1, 6.533),
    Sketcher.Constraint("Distance", 3, 1.795061),
])
pad12 = body.newObject("PartDesign::Pad", "Pad011")
pad12.Profile = sketch16
pad12.Length = 2

sketch17 = body.newObject("Sketcher::SketchObject", "Sketch016")
sketch17.AttachmentSupport = (doc.getObject("XY_Plane"), [""])
sketch17.MapMode = "FlatFace"
sketch17.addGeometry([
    Part.LineSegment(Vector(-27.7, -0.6, 0), Vector(-27.7, 2.4, 0)),
    Part.ArcOfCircle(Part.Circle(Vector(-24.7, 2.4, 0), Vector(0, 0, 1), 3), math.radians(0), math.radians(180)),
    Part.LineSegment(Vector(-21.7, 2.4, 0), Vector(-21.7, -0.6, 0)),
    Part.ArcOfCircle(Part.Circle(Vector(-24.7, -0.6, 0), Vector(0, 0, 1), 3), math.radians(180), math.radians(360)),
    Part.LineSegment(Vector(-21.7, -26.9, 0), Vector(-21.7, -29.9, 0)),
    Part.ArcOfCircle(Part.Circle(Vector(-24.7, -29.9, 0), Vector(0, 0, 1), 3), math.radians(180), math.radians(360)),
    Part.LineSegment(Vector(-27.7, -29.9, 0), Vector(-27.7, -26.9, 0)),
    Part.ArcOfCircle(Part.Circle(Vector(-24.7, -26.9, 0), Vector(0, 0, 1), 3), math.radians(0), math.radians(180)),
], False)
sketch17.addConstraint([
    Sketcher.Constraint("Tangent", 0, 2, 1, 2),
    Sketcher.Constraint("Tangent", 1, 1, 2, 1),
    Sketcher.Constraint("Tangent", 2, 2, 3, 2),
    Sketcher.Constraint("Tangent", 3, 1, 0, 1),
    Sketcher.Constraint("Tangent", 4, 2, 5, 2),
    Sketcher.Constraint("Tangent", 5, 1, 6, 1),
    Sketcher.Constraint("Tangent", 6, 2, 7, 2),
    Sketcher.Constraint("Tangent", 7, 1, 4, 1),
    Sketcher.Constraint("Vertical", 0),
    Sketcher.Constraint("Vertical", 2),
    Sketcher.Constraint("Vertical", 4),
    Sketcher.Constraint("Vertical", 6),
    Sketcher.Constraint("Equal", 3, 5),
    Sketcher.Constraint("Vertical", 3, 3, 5, 3),
    Sketcher.Constraint("Equal", 2, 4),
    Sketcher.Constraint("Radius", 1, 3.0),
    Sketcher.Constraint("DistanceY", 0, 1, 0, 2, 3.0),
    Sketcher.Constraint("DistanceX", 1, 3, -1, 1, 24.712084),
    Sketcher.Constraint("DistanceY", -1, 1, 1, 3, 2.374024),
    Sketcher.Constraint("DistanceY", 5, 3, -1, 1, 29.874024),
])
pad13 = body.newObject("PartDesign::Pad", "Pad012")
pad13.Profile = sketch17
pad13.Length = 1

sketch18 = body.newObject("Sketcher::SketchObject", "Sketch017")
sketch18.AttachmentSupport = (doc.getObject("XY_Plane"), [""])
sketch18.MapMode = "FlatFace"
sketch18.AttachmentOffset = App.Placement(Vector(0, 0, 1), App.Rotation())
sketch18.addGeometry([
    Part.LineSegment(Vector(-26.2, -28.5, 0), Vector(-26.2, -31.1, 0)),
    Part.LineSegment(Vector(-26.2, -31.1, 0), Vector(-25.4, -31.1, 0)),
    Part.LineSegment(Vector(-25.4, -31.1, 0), Vector(-25.4, -28.5, 0)),
    Part.LineSegment(Vector(-25.4, -28.5, 0), Vector(-26.2, -28.5, 0)),
    Part.LineSegment(Vector(-24.2, -28.7, 0), Vector(-24.2, -31.1, 0)),
    Part.LineSegment(Vector(-24.2, -31.1, 0), Vector(-23.2, -31.1, 0)),
    Part.LineSegment(Vector(-23.2, -31.1, 0), Vector(-23.2, -28.7, 0)),
    Part.LineSegment(Vector(-23.2, -28.7, 0), Vector(-24.2, -28.7, 0)),
], False)
sketch18.addConstraint([
    Sketcher.Constraint("Coincident", 0, 2, 1, 1),
    Sketcher.Constraint("Coincident", 1, 2, 2, 1),
    Sketcher.Constraint("Coincident", 2, 2, 3, 1),
    Sketcher.Constraint("Coincident", 3, 2, 0, 1),
    Sketcher.Constraint("Coincident", 4, 2, 5, 1),
    Sketcher.Constraint("Coincident", 5, 2, 6, 1),
    Sketcher.Constraint("Coincident", 6, 2, 7, 1),
    Sketcher.Constraint("Coincident", 7, 2, 4, 1),
    Sketcher.Constraint("Vertical", 0),
    Sketcher.Constraint("Horizontal", 1),
    Sketcher.Constraint("Vertical", 2),
    Sketcher.Constraint("Horizontal", 3),
    Sketcher.Constraint("Vertical", 4),
    Sketcher.Constraint("Horizontal", 5),
    Sketcher.Constraint("Vertical", 6),
    Sketcher.Constraint("Horizontal", 7),
    Sketcher.Constraint("DistanceX", 1, 1, 1, 2, 0.85413),
    Sketcher.Constraint("DistanceY", 0, 2, 0, 1, 2.598019),
    Sketcher.Constraint("DistanceY", 4, 2, 4, 1, 2.47526),
    Sketcher.Constraint("DistanceX", 5, 1, 5, 2, 1.005417),
    Sketcher.Constraint("DistanceX", 0, 2, -1, 1, 26.22286),
    Sketcher.Constraint("DistanceY", 0, 2, -1, 1, 31.145379),
    Sketcher.Constraint("DistanceX", 4, 2, -1, 1, 24.229472),
    Sketcher.Constraint("DistanceY", 1, 2, 4, 2, 0.008581),
])
pocket5 = body.newObject("PartDesign::Pocket", "Pocket004")
pocket5.Profile = sketch18
pocket5.Length = 1

doc.recompute()
